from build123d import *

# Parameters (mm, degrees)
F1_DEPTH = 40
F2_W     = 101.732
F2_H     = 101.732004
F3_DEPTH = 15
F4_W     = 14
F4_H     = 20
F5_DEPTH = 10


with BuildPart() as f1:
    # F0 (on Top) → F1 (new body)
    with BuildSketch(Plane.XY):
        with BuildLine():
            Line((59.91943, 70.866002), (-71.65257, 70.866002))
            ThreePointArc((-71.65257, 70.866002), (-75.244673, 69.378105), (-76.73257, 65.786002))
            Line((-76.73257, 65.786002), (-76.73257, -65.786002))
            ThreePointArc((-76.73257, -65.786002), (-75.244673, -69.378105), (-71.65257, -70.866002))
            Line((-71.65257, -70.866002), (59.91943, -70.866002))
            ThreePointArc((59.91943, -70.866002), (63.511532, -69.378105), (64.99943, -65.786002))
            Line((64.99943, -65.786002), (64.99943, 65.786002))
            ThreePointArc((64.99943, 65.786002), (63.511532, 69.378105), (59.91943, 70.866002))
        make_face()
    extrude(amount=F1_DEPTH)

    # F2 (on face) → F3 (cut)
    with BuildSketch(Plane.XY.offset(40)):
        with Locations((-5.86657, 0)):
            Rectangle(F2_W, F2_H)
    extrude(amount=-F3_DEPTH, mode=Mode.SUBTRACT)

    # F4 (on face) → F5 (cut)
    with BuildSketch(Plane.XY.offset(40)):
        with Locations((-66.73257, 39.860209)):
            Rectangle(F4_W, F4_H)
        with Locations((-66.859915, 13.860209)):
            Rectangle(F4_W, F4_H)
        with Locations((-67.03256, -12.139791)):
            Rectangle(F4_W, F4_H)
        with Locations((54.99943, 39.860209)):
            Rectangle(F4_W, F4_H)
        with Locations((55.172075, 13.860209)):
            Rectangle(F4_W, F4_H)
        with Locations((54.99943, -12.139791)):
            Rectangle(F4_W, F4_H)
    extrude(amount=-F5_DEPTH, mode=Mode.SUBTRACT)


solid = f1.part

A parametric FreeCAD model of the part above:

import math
import FreeCAD as App
import Part
import Sketcher
from FreeCAD import Vector
Q = App.Units.Quantity

doc = App.newDocument("Part")
body = doc.addObject("PartDesign::Body", "Body")

# Sketch on XY plane
sketch1 = body.newObject("Sketcher::SketchObject", "Sketch")
sketch1.AttachmentSupport = (doc.getObject("XY_Plane"), [""])
sketch1.MapMode = "FlatFace"
sketch1.addGeometry([
    Part.LineSegment(Vector(60, 71, 0), Vector(-72, 71, 0)),  # 0
    Part.ArcOfCircle(Part.Circle(Vector(-72, 66, 0), Vector(0, 0, 1), 5), math.radians(90), math.radians(180)),  # 1
    Part.LineSegment(Vector(-77, 66, 0), Vector(-77, -66, 0)),  # 2
    Part.ArcOfCircle(Part.Circle(Vector(-72, -66, 0), Vector(0, 0, 1), 5), math.radians(180), math.radians(270)),  # 3
    Part.LineSegment(Vector(-72, -71, 0), Vector(60, -71, 0)),  # 4
    Part.ArcOfCircle(Part.Circle(Vector(60, -66, 0), Vector(0, 0, 1), 5), math.radians(-90), math.radians(0)),  # 5
    Part.LineSegment(Vector(65, -66, 0), Vector(65, 66, 0)),  # 6
    Part.ArcOfCircle(Part.Circle(Vector(60, 66, 0), Vector(0, 0, 1), 5), math.radians(0), math.radians(90)),  # 7
], False)
sketch1.addConstraint([
    Sketcher.Constraint("Tangent", 0, 2, 1, 1),
    Sketcher.Constraint("Tangent", 1, 2, 2, 1),
    Sketcher.Constraint("Tangent", 2, 2, 3, 1),
    Sketcher.Constraint("Tangent", 3, 2, 4, 1),
    Sketcher.Constraint("Tangent", 4, 2, 5, 1),
    Sketcher.Constraint("Tangent", 5, 2, 6, 1),
    Sketcher.Constraint("Tangent", 6, 2, 7, 1),
    Sketcher.Constraint("Tangent", 7, 2, 0, 1),
    Sketcher.Constraint("Horizontal", 0),
    Sketcher.Constraint("Vertical", 2),
    Sketcher.Constraint("Horizontal", 4),
    Sketcher.Constraint("Vertical", 6),
    Sketcher.Constraint("Equal", 1, 3),
    Sketcher.Constraint("Equal", 3, 5),
    Sketcher.Constraint("Equal", 5, 7),
    Sketcher.Constraint("Radius", 1, Q("5.079998 mm")),
    Sketcher.Constraint("DistanceX", 0, 2, 0, 1, Q("131.572 mm")),
    Sketcher.Constraint("DistanceY", -1, 1, 0, 2, Q("70.866002 mm")),
    Sketcher.Constraint("DistanceY", 2, 2, -1, 1, Q("65.786002 mm")),
    Sketcher.Constraint("DistanceX", 1, 3, -1, 1, Q("71.652572 mm")),
])
pad1 = body.newObject("PartDesign::Pad", "Pad")
pad1.Profile = sketch1
pad1.Length = 40

# Sketch on XY plane
sketch2 = body.newObject("Sketcher::SketchObject", "Sketch001")
sketch2.AttachmentSupport = (doc.getObject("XY_Plane"), [""])
sketch2.MapMode = "FlatFace"
sketch2.AttachmentOffset = App.Placement(Vector(0, 0, 40), App.Rotation())
sketch2.addGeometry([
    Part.LineSegment(Vector(-57, 51, 0), Vector(-57, -51, 0)),
    Part.LineSegment(Vector(-57, -51, 0), Vector(45, -51, 0)),
    Part.LineSegment(Vector(45, -51, 0), Vector(45, 51, 0)),
    Part.LineSegment(Vector(45, 51, 0), Vector(-57, 51, 0)),
], False)
sketch2.addConstraint([
    Sketcher.Constraint("Coincident", 0, 2, 1, 1),
    Sketcher.Constraint("Coincident", 1, 2, 2, 1),
    Sketcher.Constraint("Coincident", 2, 2, 3, 1),
    Sketcher.Constraint("Coincident", 3, 2, 0, 1),
    Sketcher.Constraint("Vertical", 0),
    Sketcher.Constraint("Horizontal", 1),
    Sketcher.Constraint("Vertical", 2),
    Sketcher.Constraint("Horizontal", 3),
    Sketcher.Constraint("DistanceX", 1, 1, 1, 2, Q("101.732 mm")),
    Sketcher.Constraint("DistanceY", 0, 2, 0, 1, Q("101.732004 mm")),
    Sketcher.Constraint("DistanceX", 0, 2, -1, 1, Q("56.73257 mm")),
    Sketcher.Constraint("DistanceY", 0, 2, -1, 1, Q("50.866002 mm")),
])
pocket1 = body.newObject("PartDesign::Pocket", "Pocket")
pocket1.Profile = sketch2
pocket1.Length = 15

# Sketch on XY plane
sketch3 = body.newObject("Sketcher::SketchObject", "Sketch002")
sketch3.AttachmentSupport = (doc.getObject("XY_Plane"), [""])
sketch3.MapMode = "FlatFace"
sketch3.AttachmentOffset = App.Placement(Vector(0, 0, 40), App.Rotation())
sketch3.addGeometry([
    Part.LineSegment(Vector(-74, 50, 0), Vector(-74, 30, 0)),  # 0
    Part.LineSegment(Vector(-74, 30, 0), Vector(-60, 30, 0)),  # 1
    Part.LineSegment(Vector(-60, 30, 0), Vector(-60, 50, 0)),  # 2
    Part.LineSegment(Vector(-60, 50, 0), Vector(-74, 50, 0)),  # 3
    Part.LineSegment(Vector(-74, 24, 0), Vector(-74, 4, 0)),  # 4
    Part.LineSegment(Vector(-74, 4, 0), Vector(-60, 4, 0)),  # 5
    Part.LineSegment(Vector(-60, 4, 0), Vector(-60, 24, 0)),  # 6
    Part.LineSegment(Vector(-60, 24, 0), Vector(-74, 24, 0)),  # 7
    Part.LineSegment(Vector(-74, -2, 0), Vector(-74, -22, 0)),  # 8
    Part.LineSegment(Vector(-74, -22, 0), Vector(-60, -22, 0)),  # 9
    Part.LineSegment(Vector(-60, -22, 0), Vector(-60, -2, 0)),  # 10
    Part.LineSegment(Vector(-60, -2, 0), Vector(-74, -2, 0)),  # 11
    Part.LineSegment(Vector(48, 50, 0), Vector(48, 30, 0)),  # 12
    Part.LineSegment(Vector(48, 30, 0), Vector(62, 30, 0)),  # 13
    Part.LineSegment(Vector(62, 30, 0), Vector(62, 50, 0)),  # 14
    Part.LineSegment(Vector(62, 50, 0), Vector(48, 50, 0)),  # 15
    Part.LineSegment(Vector(48, 24, 0), Vector(48, 4, 0)),  # 16
    Part.LineSegment(Vector(48, 4, 0), Vector(62, 4, 0)),  # 17
    Part.LineSegment(Vector(62, 4, 0), Vector(62, 24, 0)),  # 18
    Part.LineSegment(Vector(62, 24, 0), Vector(48, 24, 0)),  # 19
    Part.LineSegment(Vector(48, -2, 0), Vector(48, -22, 0)),  # 20
    Part.LineSegment(Vector(48, -22, 0), Vector(62, -22, 0)),  # 21
    Part.LineSegment(Vector(62, -22, 0), Vector(62, -2, 0)),  # 22
    Part.LineSegment(Vector(62, -2, 0), Vector(48, -2, 0)),  # 23
], False)
sketch3.addConstraint([
    Sketcher.Constraint("Coincident", 0, 2, 1, 1),
    Sketcher.Constraint("Coincident", 1, 2, 2, 1),
    Sketcher.Constraint("Coincident", 2, 2, 3, 1),
    Sketcher.Constraint("Coincident", 3, 2, 0, 1),
    Sketcher.Constraint("Coincident", 4, 2, 5, 1),
    Sketcher.Constraint("Coincident", 5, 2, 6, 1),
    Sketcher.Constraint("Coincident", 6, 2, 7, 1),
    Sketcher.Constraint("Coincident", 7, 2, 4, 1),
    Sketcher.Constraint("Coincident", 8, 2, 9, 1),
    Sketcher.Constraint("Coincident", 9, 2, 10, 1),
    Sketcher.Constraint("Coincident", 10, 2, 11, 1),
    Sketcher.Constraint("Coincident", 11, 2, 8, 1),
    Sketcher.Constraint("Coincident", 12, 2, 13, 1),
    Sketcher.Constraint("Coincident", 13, 2, 14, 1),
    Sketcher.Constraint("Coincident", 14, 2, 15, 1),
    Sketcher.Constraint("Coincident", 15, 2, 12, 1),
    Sketcher.Constraint("Coincident", 16, 2, 17, 1),
    Sketcher.Constraint("Coincident", 17, 2, 18, 1),
    Sketcher.Constraint("Coincident", 18, 2, 19, 1),
    Sketcher.Constraint("Coincident", 19, 2, 16, 1),
    Sketcher.Constraint("Coincident", 20, 2, 21, 1),
    Sketcher.Constraint("Coincident", 21, 2, 22, 1),
    Sketcher.Constraint("Coincident", 22, 2, 23, 1),
    Sketcher.Constraint("Coincident", 23, 2, 20, 1),
    Sketcher.Constraint("Vertical", 0),
    Sketcher.Constraint("Horizontal", 1),
    Sketcher.Constraint("Vertical", 2),
    Sketcher.Constraint("Horizontal", 3),
    Sketcher.Constraint("Vertical", 4),
    Sketcher.Constraint("Horizontal", 5),
    Sketcher.Constraint("Vertical", 6),
    Sketcher.Constraint("Horizontal", 7),
    Sketcher.Constraint("Vertical", 8),
    Sketcher.Constraint("Horizontal", 9),
    Sketcher.Constraint("Vertical", 10),
    Sketcher.Constraint("Horizontal", 11),
    Sketcher.Constraint("Vertical", 12),
    Sketcher.Constraint("Horizontal", 13),
    Sketcher.Constraint("Vertical", 14),
    Sketcher.Constraint("Horizontal", 15),
    Sketcher.Constraint("Vertical", 16),
    Sketcher.Constraint("Horizontal", 17),
    Sketcher.Constraint("Vertical", 18),
    Sketcher.Constraint("Horizontal", 19),
    Sketcher.Constraint("Vertical", 20),
    Sketcher.Constraint("Horizontal", 21),
    Sketcher.Constraint("Vertical", 22),
    Sketcher.Constraint("Horizontal", 23),
    Sketcher.Constraint("Horizontal", 1, 2, 12, 2),
    Sketcher.Constraint("Horizontal", 3, 2, 14, 2),
    Sketcher.Constraint("Horizontal", 5, 2, 16, 2),
    Sketcher.Constraint("Horizontal", 7, 2, 18, 2),
    Sketcher.Constraint("Horizontal", 9, 2, 20, 2),
    Sketcher.Constraint("Horizontal", 11, 2, 22, 2),
    Sketcher.Constraint("Vertical", 15, 2, 20, 2),
    Sketcher.Constraint("Vertical", 14, 2, 21, 2),
    Sketcher.Constraint("Equal", 3, 5),
    Sketcher.Constraint("Equal", 7, 9),
    Sketcher.Constraint("Equal", 11, 13),
    Sketcher.Constraint("Equal", 15, 17),
    Sketcher.Constraint("Equal", 2, 4),
    Sketcher.Constraint("Equal", 6, 8),
    Sketcher.Constraint("DistanceX", 1, 1, 1, 2, Q("14 mm")),
    Sketcher.Constraint("DistanceY", 0, 2, 0, 1, Q("20 mm")),
    Sketcher.Constraint("DistanceY", 4, 2, 0, 2, Q("26 mm")),
    Sketcher.Constraint("DistanceY", 8, 2, 4, 2, Q("26 mm")),
    Sketcher.Constraint("DistanceX", 1, 2, 12, 2, Q("107.732 mm")),
    Sketcher.Constraint("DistanceX", 0, 2, -1, 1, Q("73.73257 mm")),
    Sketcher.Constraint("DistanceY", -1, 1, 0, 2, Q("29.860209 mm")),
    Sketcher.Constraint("DistanceX", 8, 2, -1, 1, Q("74.03256 mm")),
    Sketcher.Constraint("DistanceX", 5, 2, 16, 2, Q("108.03199 mm")),
    Sketcher.Constraint("DistanceX", 4, 2, -1, 1, Q("73.859915 mm")),
])
pocket2 = body.newObject("PartDesign::Pocket", "Pocket001")
pocket2.Profile = sketch3
pocket2.Length = 10

doc.recompute()
